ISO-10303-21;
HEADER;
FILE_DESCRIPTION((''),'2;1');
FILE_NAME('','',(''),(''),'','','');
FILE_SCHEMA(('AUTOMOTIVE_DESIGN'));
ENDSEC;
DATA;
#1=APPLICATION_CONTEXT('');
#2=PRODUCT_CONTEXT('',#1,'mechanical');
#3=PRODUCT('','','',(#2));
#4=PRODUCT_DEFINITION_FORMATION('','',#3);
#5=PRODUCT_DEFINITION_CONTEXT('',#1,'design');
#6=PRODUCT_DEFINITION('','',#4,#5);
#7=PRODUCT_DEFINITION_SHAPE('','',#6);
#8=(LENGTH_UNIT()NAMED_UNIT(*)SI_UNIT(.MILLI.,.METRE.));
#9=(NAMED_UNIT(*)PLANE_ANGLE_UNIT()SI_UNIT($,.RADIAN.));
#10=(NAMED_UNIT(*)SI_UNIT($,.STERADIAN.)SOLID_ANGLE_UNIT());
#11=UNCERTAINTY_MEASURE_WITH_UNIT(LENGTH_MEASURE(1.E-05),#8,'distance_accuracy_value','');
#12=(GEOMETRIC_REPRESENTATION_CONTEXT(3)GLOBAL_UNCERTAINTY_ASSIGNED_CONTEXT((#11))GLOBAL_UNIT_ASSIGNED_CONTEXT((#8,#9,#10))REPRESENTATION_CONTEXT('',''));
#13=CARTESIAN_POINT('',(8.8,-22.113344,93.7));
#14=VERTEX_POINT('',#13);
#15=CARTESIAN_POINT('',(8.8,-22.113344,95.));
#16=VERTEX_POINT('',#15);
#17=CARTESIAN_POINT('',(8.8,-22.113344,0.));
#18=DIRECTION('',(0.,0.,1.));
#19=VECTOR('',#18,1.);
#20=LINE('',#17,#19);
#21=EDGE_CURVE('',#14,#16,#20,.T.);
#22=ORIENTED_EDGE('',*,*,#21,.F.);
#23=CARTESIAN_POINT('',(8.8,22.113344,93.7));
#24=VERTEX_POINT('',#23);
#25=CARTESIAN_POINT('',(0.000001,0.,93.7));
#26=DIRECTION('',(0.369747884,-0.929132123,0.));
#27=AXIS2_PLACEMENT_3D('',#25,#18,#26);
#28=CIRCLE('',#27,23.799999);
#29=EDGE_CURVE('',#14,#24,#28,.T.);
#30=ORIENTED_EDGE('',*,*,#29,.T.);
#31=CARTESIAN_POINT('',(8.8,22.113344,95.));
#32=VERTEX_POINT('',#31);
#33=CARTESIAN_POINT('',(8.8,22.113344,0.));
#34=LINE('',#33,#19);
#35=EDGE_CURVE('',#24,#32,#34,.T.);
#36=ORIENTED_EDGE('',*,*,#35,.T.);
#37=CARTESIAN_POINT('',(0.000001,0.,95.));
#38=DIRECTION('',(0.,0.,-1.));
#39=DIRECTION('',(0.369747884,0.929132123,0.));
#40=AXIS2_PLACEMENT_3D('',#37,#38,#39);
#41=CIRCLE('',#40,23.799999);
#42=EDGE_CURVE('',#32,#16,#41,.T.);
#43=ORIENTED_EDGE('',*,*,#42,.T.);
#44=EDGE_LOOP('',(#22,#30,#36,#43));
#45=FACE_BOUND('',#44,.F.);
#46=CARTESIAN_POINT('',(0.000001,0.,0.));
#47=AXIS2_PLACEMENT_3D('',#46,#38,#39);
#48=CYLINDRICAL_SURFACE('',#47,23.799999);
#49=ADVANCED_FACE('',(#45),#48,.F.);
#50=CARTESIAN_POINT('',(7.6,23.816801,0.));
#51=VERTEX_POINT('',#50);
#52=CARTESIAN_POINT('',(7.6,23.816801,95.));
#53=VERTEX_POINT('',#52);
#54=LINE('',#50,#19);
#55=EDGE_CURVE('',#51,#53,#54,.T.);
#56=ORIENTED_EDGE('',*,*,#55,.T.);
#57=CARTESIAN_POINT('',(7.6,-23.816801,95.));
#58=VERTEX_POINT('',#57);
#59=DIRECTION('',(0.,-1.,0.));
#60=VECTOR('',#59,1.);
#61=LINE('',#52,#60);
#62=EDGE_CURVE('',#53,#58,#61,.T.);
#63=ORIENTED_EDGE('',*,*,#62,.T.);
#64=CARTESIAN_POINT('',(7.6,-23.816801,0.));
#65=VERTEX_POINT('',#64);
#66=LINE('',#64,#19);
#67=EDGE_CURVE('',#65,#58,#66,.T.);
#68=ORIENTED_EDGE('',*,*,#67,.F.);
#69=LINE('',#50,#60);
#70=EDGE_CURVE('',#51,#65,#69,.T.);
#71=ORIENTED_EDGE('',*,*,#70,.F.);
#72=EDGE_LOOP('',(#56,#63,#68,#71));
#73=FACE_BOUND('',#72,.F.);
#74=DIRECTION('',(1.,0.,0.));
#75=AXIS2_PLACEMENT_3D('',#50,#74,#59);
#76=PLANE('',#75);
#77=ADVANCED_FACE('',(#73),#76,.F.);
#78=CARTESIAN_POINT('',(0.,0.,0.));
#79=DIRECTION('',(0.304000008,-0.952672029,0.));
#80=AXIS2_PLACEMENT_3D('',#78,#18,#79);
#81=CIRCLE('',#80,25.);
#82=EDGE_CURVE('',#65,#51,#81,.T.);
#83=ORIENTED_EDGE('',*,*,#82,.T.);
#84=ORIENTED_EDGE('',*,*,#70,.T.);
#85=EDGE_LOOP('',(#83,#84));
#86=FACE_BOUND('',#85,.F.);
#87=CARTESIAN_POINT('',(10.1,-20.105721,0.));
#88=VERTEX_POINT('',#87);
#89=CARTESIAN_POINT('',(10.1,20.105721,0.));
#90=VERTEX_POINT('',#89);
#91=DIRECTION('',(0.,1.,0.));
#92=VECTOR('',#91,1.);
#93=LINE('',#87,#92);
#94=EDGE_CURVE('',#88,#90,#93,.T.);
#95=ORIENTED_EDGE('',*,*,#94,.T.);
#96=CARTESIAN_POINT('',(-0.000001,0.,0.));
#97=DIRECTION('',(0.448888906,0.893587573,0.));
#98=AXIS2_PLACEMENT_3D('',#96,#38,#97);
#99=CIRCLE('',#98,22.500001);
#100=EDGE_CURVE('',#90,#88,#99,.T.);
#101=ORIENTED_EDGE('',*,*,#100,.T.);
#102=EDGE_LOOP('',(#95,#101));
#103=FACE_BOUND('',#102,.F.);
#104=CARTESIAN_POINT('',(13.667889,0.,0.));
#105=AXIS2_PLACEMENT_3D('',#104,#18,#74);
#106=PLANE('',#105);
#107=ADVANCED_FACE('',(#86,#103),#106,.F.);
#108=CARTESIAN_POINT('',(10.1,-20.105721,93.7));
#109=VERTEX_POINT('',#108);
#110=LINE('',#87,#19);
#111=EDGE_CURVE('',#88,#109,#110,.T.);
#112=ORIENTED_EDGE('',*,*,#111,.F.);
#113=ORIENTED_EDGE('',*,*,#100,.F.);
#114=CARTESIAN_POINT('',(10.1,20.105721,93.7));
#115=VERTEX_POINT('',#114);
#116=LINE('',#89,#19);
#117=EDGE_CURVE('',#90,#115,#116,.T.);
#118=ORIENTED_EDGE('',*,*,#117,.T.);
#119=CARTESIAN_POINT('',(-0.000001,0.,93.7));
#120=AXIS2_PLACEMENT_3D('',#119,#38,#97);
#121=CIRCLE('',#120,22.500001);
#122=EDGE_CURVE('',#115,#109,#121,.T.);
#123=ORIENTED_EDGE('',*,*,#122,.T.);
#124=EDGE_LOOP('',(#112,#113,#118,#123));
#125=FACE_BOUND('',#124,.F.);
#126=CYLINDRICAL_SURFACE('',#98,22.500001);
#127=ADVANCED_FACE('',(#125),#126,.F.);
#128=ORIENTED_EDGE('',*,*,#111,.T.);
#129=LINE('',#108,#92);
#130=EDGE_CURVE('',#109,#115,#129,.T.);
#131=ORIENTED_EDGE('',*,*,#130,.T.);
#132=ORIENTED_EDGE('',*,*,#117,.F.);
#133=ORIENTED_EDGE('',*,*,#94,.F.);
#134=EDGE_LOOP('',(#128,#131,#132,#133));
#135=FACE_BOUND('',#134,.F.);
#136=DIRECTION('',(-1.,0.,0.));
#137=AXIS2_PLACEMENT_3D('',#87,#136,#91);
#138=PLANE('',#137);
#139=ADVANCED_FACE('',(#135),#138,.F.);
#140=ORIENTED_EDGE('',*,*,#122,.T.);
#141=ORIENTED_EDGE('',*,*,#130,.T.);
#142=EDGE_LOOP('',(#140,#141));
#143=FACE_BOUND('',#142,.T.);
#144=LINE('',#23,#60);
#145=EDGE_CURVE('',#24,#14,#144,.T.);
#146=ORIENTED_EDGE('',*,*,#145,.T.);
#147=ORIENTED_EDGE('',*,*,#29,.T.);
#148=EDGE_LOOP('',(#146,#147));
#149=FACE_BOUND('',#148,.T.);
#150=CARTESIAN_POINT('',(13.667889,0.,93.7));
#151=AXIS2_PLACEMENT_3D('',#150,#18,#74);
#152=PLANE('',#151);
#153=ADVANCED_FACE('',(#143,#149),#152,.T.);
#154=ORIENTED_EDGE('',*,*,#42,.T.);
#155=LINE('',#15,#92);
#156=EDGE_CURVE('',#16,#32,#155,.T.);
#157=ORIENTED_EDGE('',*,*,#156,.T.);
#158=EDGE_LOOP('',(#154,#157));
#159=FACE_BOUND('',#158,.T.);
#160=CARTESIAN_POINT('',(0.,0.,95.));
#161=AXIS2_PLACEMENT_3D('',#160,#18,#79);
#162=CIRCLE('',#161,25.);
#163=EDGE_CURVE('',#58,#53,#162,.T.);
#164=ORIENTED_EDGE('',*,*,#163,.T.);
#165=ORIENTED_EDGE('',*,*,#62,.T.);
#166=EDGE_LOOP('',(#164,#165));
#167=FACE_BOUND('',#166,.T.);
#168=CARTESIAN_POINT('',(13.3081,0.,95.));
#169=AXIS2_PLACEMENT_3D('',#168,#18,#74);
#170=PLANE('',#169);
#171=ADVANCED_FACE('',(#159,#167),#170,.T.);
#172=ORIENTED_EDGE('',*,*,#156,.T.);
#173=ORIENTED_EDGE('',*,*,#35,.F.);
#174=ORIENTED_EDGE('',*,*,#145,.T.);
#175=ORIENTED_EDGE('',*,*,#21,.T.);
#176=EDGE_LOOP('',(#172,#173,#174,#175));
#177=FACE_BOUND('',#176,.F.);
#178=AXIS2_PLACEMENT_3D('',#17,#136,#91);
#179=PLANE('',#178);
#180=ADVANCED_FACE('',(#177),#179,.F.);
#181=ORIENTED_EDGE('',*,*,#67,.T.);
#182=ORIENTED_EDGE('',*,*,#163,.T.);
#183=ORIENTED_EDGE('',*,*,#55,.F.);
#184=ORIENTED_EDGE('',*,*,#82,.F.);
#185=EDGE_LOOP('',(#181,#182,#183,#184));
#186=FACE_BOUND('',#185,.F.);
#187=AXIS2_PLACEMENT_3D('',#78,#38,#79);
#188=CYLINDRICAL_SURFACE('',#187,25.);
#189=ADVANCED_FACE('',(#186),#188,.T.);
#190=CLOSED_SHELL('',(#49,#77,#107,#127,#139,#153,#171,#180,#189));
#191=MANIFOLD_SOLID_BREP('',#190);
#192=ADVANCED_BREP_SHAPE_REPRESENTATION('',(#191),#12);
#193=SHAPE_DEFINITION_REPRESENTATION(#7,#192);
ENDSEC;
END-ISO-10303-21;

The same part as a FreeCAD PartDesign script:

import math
import FreeCAD as App
import Part
import Sketcher

V = App.Vector

doc = App.newDocument("Part")
body = doc.addObject("PartDesign::Body", "Body")

# Sketch on XY plane
sketch1 = body.newObject("Sketcher::SketchObject", "Sketch")
sketch1.AttachmentSupport = (doc.getObject("XY_Plane"), [""])
sketch1.MapMode = "FlatFace"
sketch1.addGeometry(Part.ArcOfCircle(Part.Circle(V(0, 0, 0), V(0, 0, 1), 25), math.radians(-72), math.radians(72)), False)
sketch1.addGeometry(Part.LineSegment(V(8, 24, 0), V(8, -24, 0)), False)
sketch1.addGeometry(Part.LineSegment(V(9, -22, 0), V(9, 22, 0)), False)
sketch1.addGeometry(Part.ArcOfCircle(Part.Circle(V(0, 0, 0), V(0, 0, 1), 24), math.radians(-68), math.radians(68)), False)
sketch1.addConstraint(Sketcher.Constraint("Coincident", 0, 1, 1, 2))
sketch1.addConstraint(Sketcher.Constraint("Coincident", 1, 1, 0, 2))
sketch1.addConstraint(Sketcher.Constraint("Coincident", 2, 1, 3, 1))
sketch1.addConstraint(Sketcher.Constraint("Coincident", 3, 2, 2, 2))
sketch1.addConstraint(Sketcher.Constraint("Vertical", 1))
sketch1.addConstraint(Sketcher.Constraint("Vertical", 2))
sketch1.addConstraint(Sketcher.Constraint("Coincident", 0, 3, -1, 1))
sketch1.addConstraint(Sketcher.Constraint("Coincident", 3, 3, -1, 1))
sketch1.addConstraint(Sketcher.Constraint("Radius", 0, 25.0))
sketch1.addConstraint(Sketcher.Constraint("Radius", 3, 23.799999))
sketch1.addConstraint(Sketcher.Constraint("DistanceX", -1, 1, 0, 1, 7.6))
sketch1.addConstraint(Sketcher.Constraint("DistanceX", -1, 1, 2, 1, 8.8))
pad1 = body.newObject("PartDesign::Pad", "Pad")
pad1.Profile = sketch1
pad1.Length = 95

# Sketch on XY plane
sketch2 = body.newObject("Sketcher::SketchObject", "Sketch001")
sketch2.AttachmentSupport = (doc.getObject("XY_Plane"), [""])
sketch2.MapMode = "FlatFace"
sketch2.addGeometry(Part.LineSegment(V(9, 22, 0), V(9, -22, 0)), False)
sketch2.addGeometry(Part.ArcOfCircle(Part.Circle(V(0, 0, 0), V(0, 0, 1), 24), math.radians(-68), math.radians(68)), False)
sketch2.addGeometry(Part.LineSegment(V(10, -20, 0), V(10, 20, 0)), False)
sketch2.addGeometry(Part.ArcOfCircle(Part.Circle(V(0, 0, 0), V(0, 0, 1), 23), math.radians(-63), math.radians(63)), False)
sketch2.addConstraint(Sketcher.Constraint("Coincident", 0, 1, 1, 2))
sketch2.addConstraint(Sketcher.Constraint("Coincident", 1, 1, 0, 2))
sketch2.addConstraint(Sketcher.Constraint("Coincident", 2, 1, 3, 1))
sketch2.addConstraint(Sketcher.Constraint("Coincident", 3, 2, 2, 2))
sketch2.addConstraint(Sketcher.Constraint("Vertical", 0))
sketch2.addConstraint(Sketcher.Constraint("Vertical", 2))
sketch2.addConstraint(Sketcher.Constraint("Coincident", 1, 3, -1, 1))
sketch2.addConstraint(Sketcher.Constraint("Coincident", 3, 3, -1, 1))
sketch2.addConstraint(Sketcher.Constraint("Radius", 1, 23.799999))
sketch2.addConstraint(Sketcher.Constraint("Radius", 3, 22.500001))
sketch2.addConstraint(Sketcher.Constraint("DistanceX", -1, 1, 0, 1, 8.8))
sketch2.addConstraint(Sketcher.Constraint("DistanceX", -1, 1, 2, 1, 10.1))
pad2 = body.newObject("PartDesign::Pad", "Pad001")
pad2.Profile = sketch2
pad2.Length = 93.7

doc.recompute()
